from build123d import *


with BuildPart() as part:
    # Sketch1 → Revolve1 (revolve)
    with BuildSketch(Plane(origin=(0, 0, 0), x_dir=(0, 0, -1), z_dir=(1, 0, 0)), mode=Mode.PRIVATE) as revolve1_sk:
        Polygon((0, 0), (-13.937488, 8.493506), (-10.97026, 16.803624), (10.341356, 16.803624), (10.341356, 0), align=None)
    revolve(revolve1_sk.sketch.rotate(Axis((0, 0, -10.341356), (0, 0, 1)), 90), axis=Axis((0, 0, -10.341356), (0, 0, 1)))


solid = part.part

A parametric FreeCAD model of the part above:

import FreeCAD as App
import Part
import Sketcher

V = App.Vector
Q = App.Units.Quantity


def add_polygon(sketch, points):
    """Adds a closed chain of lines whose ends are joined by coincident constraints."""
    first, n = sketch.GeometryCount, len(points)
    for a, b in zip(points, points[1:] + points[:1]):
        sketch.addGeometry(Part.LineSegment(App.Vector(*a, 0), App.Vector(*b, 0)), False)
    for i in range(n):
        sketch.addConstraint(Sketcher.Constraint("Coincident", first + i, 2, first + (i + 1) % n, 1))

doc = App.newDocument("Part")
body = doc.addObject("PartDesign::Body", "Body")

# Sketch on YZ plane
sketch1 = body.newObject("Sketcher::SketchObject", "Sketch")
sketch1.AttachmentSupport = (doc.getObject("YZ_Plane"), [""])
sketch1.MapMode = "FlatFace"
add_polygon(sketch1, [(8, 14), (0, 0), (0, -10), (17, -10), (17, 11)])  # lines 0-4
sketch1.addConstraint(Sketcher.Constraint("Vertical", 1))
sketch1.addConstraint(Sketcher.Constraint("Horizontal", 2))
sketch1.addConstraint(Sketcher.Constraint("Vertical", 3))
sketch1.addConstraint(Sketcher.Constraint("Coincident", 0, 2, -1, 1))
sketch1.addConstraint(Sketcher.Constraint("DistanceX", 2, 1, 2, 2, Q("16.803624 mm")))
sketch1.addConstraint(Sketcher.Constraint("DistanceY", 1, 2, 1, 1, Q("10.341356 mm")))
sketch1.addConstraint(Sketcher.Constraint("DistanceY", 3, 1, 3, 2, Q("21.311616 mm")))
sketch1.addConstraint(Sketcher.Constraint("DistanceY", 3, 2, 4, 2, Q("2.967228 mm")))
sketch1.addConstraint(Sketcher.Constraint("Distance", 0, Q("16.321557 mm")))
revolution = body.newObject("PartDesign::Revolution", "Revolution")
revolution.Profile = sketch1
revolution.ReferenceAxis = (sketch1, ["V_Axis"])
revolution.Angle = 360

doc.recompute()
